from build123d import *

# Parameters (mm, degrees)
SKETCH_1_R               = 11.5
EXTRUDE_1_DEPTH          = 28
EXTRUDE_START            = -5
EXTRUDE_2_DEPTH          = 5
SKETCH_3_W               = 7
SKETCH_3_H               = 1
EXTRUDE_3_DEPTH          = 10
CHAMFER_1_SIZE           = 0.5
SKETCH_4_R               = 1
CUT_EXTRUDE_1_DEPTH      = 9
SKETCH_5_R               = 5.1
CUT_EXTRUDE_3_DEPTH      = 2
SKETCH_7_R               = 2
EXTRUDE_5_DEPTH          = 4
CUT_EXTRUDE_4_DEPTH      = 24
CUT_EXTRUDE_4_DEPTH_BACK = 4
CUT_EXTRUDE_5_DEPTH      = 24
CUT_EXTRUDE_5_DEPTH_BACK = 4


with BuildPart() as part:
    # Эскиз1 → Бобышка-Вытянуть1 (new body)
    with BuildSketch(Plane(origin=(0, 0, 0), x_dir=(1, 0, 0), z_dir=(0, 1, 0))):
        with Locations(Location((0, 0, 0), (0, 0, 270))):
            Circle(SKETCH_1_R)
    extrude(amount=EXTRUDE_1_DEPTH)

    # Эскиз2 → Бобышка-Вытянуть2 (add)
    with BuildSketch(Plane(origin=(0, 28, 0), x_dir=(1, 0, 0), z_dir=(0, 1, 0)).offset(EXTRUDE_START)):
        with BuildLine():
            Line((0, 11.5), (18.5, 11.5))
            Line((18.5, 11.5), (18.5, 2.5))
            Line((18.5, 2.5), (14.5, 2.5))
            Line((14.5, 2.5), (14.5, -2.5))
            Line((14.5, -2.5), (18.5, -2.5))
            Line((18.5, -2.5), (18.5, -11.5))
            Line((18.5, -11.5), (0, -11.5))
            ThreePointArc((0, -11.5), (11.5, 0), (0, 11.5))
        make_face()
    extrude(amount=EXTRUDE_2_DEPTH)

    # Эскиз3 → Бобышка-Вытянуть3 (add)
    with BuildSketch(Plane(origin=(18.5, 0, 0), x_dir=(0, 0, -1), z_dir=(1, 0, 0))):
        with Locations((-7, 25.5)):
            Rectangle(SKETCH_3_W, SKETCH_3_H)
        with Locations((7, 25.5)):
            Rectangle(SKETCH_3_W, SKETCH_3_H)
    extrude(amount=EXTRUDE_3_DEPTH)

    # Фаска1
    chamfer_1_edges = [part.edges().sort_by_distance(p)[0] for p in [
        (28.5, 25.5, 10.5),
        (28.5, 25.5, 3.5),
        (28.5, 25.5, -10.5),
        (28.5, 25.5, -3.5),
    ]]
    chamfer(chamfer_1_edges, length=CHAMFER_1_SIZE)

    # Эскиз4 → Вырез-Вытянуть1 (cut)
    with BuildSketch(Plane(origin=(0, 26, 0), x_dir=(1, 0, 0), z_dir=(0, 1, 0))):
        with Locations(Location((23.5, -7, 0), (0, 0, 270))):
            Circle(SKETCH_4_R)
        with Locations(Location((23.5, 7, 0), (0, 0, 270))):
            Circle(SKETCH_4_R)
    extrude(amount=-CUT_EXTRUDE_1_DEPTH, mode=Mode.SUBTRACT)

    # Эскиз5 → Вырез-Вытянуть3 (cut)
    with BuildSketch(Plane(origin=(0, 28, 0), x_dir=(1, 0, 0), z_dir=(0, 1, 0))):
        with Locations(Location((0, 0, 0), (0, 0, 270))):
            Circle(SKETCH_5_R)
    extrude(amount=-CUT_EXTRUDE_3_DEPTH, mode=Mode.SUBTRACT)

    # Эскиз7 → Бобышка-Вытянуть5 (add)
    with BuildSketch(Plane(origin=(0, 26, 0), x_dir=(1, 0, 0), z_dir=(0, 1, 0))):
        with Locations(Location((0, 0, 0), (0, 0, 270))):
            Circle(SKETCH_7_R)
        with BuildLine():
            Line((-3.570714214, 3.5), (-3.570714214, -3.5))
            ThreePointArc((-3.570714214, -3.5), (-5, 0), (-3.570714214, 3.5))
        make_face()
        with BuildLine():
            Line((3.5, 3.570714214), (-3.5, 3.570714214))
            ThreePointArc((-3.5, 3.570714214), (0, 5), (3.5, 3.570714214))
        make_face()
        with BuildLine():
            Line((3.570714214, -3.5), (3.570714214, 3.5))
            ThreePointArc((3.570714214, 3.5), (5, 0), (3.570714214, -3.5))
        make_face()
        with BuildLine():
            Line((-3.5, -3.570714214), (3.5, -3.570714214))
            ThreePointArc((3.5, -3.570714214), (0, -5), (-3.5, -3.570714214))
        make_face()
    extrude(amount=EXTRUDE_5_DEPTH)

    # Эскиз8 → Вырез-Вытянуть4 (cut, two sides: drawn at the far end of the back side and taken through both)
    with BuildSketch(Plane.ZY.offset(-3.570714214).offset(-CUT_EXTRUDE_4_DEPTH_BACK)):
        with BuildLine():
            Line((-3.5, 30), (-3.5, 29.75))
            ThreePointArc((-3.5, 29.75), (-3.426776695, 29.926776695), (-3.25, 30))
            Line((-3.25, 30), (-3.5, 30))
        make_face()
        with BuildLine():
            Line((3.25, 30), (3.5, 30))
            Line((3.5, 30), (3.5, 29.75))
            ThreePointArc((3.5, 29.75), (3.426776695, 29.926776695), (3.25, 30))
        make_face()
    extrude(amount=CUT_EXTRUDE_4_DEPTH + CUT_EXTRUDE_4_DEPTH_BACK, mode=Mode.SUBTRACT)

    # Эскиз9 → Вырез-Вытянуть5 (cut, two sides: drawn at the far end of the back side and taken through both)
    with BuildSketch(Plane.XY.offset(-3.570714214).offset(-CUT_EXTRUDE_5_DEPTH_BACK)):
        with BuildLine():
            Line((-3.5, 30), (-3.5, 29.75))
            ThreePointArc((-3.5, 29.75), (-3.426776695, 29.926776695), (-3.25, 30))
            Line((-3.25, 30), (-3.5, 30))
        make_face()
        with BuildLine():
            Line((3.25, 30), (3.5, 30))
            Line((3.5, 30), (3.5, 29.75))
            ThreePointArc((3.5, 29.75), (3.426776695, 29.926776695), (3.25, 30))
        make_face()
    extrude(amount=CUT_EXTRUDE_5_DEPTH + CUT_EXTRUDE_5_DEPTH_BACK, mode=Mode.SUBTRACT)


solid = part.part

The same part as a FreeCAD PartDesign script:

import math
import FreeCAD as App
import Part
import Sketcher

V = App.Vector


def edges_at(feature, points):
    """Names of the edges that pass closest to the given points."""
    edges = feature.Shape.Edges
    near = lambda p: min(range(len(edges)), key=lambda i: edges[i].distToShape(Part.Vertex(*p))[0])
    return sorted({f"Edge{near(p) + 1}" for p in points})

doc = App.newDocument("Part")
body = doc.addObject("PartDesign::Body", "Body")

sketch1 = body.newObject("Sketcher::SketchObject", "Sketch")
sketch1.AttachmentSupport = (doc.getObject("XZ_Plane"), [""])
sketch1.MapMode = "FlatFace"
sketch1.addGeometry(Part.Circle(V(0, 0, 0), V(0, 0, 1), 12), False)
sketch1.addConstraint(Sketcher.Constraint("Coincident", 0, 3, -1, 1))
sketch1.addConstraint(Sketcher.Constraint("Diameter", 0, 23.0))
pad1 = body.newObject("PartDesign::Pad", "Pad")
pad1.Profile = sketch1
pad1.Length = 28
pad1.Reversed = True

sketch2 = body.newObject("Sketcher::SketchObject", "Sketch001")
sketch2.AttachmentSupport = (doc.getObject("XZ_Plane"), [""])
sketch2.MapMode = "FlatFace"
sketch2.AttachmentOffset = App.Placement(V(0, 0, -23), App.Rotation())
sketch2.addGeometry(Part.LineSegment(V(18.5, -11.5, 0), V(0, -11.5, 0)), False)
sketch2.addGeometry(Part.ArcOfCircle(Part.Circle(V(0, 0, 0), V(0, 0, 1), 11.5), math.radians(-90), math.radians(90)), False)
sketch2.addGeometry(Part.LineSegment(V(0, 11.5, 0), V(18.5, 11.5, 0)), False)
sketch2.addGeometry(Part.LineSegment(V(18.5, 11.5, 0), V(18.5, 2.5, 0)), False)
sketch2.addGeometry(Part.LineSegment(V(18.5, 2.5, 0), V(14.5, 2.5, 0)), False)
sketch2.addGeometry(Part.LineSegment(V(14.5, 2.5, 0), V(14.5, -2.5, 0)), False)
sketch2.addGeometry(Part.LineSegment(V(14.5, -2.5, 0), V(18.5, -2.5, 0)), False)
sketch2.addGeometry(Part.LineSegment(V(18.5, -2.5, 0), V(18.5, -11.5, 0)), False)
sketch2.addConstraint(Sketcher.Constraint("Tangent", 0, 2, 1, 1))
sketch2.addConstraint(Sketcher.Constraint("Tangent", 1, 2, 2, 1))
sketch2.addConstraint(Sketcher.Constraint("Coincident", 2, 2, 3, 1))
sketch2.addConstraint(Sketcher.Constraint("Coincident", 3, 2, 4, 1))
sketch2.addConstraint(Sketcher.Constraint("Coincident", 4, 2, 5, 1))
sketch2.addConstraint(Sketcher.Constraint("Coincident", 5, 2, 6, 1))
sketch2.addConstraint(Sketcher.Constraint("Coincident", 6, 2, 7, 1))
sketch2.addConstraint(Sketcher.Constraint("Coincident", 7, 2, 0, 1))
sketch2.addConstraint(Sketcher.Constraint("Horizontal", 0))
sketch2.addConstraint(Sketcher.Constraint("Horizontal", 2))
sketch2.addConstraint(Sketcher.Constraint("Vertical", 3))
sketch2.addConstraint(Sketcher.Constraint("Horizontal", 4))
sketch2.addConstraint(Sketcher.Constraint("Vertical", 5))
sketch2.addConstraint(Sketcher.Constraint("Horizontal", 6))
sketch2.addConstraint(Sketcher.Constraint("Vertical", 7))
sketch2.addConstraint(Sketcher.Constraint("Coincident", 1, 3, -1, 1))
sketch2.addConstraint(Sketcher.Constraint("Symmetric", 3, 2, 6, 2, -1))
sketch2.addConstraint(Sketcher.Constraint("Radius", 1, 11.5))
sketch2.addConstraint(Sketcher.Constraint("DistanceX", 4, 2, 4, 1, 4.0))
sketch2.addConstraint(Sketcher.Constraint("DistanceY", 3, 2, 3, 1, 9.0))
sketch2.addConstraint(Sketcher.Constraint("DistanceX", 0, 2, 0, 1, 18.5))
pad2 = body.newObject("PartDesign::Pad", "Pad001")
pad2.Profile = sketch2
pad2.Length = 5
pad2.Reversed = True

sketch3 = body.newObject("Sketcher::SketchObject", "Sketch002")
sketch3.AttachmentSupport = (doc.getObject("YZ_Plane"), [""])
sketch3.MapMode = "FlatFace"
sketch3.AttachmentOffset = App.Placement(V(0, 0, 18.5), App.Rotation())
sketch3.addGeometry(Part.LineSegment(V(26, 10.5, 0), V(25, 10.5, 0)), False)
sketch3.addGeometry(Part.LineSegment(V(25, 10.5, 0), V(25, 3.5, 0)), False)
sketch3.addGeometry(Part.LineSegment(V(25, 3.5, 0), V(26, 3.5, 0)), False)
sketch3.addGeometry(Part.LineSegment(V(26, 3.5, 0), V(26, 10.5, 0)), False)
sketch3.addGeometry(Part.LineSegment(V(26, -3.5, 0), V(25, -3.5, 0)), False)
sketch3.addGeometry(Part.LineSegment(V(25, -3.5, 0), V(25, -10.5, 0)), False)
sketch3.addGeometry(Part.LineSegment(V(25, -10.5, 0), V(26, -10.5, 0)), False)
sketch3.addGeometry(Part.LineSegment(V(26, -10.5, 0), V(26, -3.5, 0)), False)
sketch3.addConstraint(Sketcher.Constraint("Coincident", 0, 2, 1, 1))
sketch3.addConstraint(Sketcher.Constraint("Coincident", 1, 2, 2, 1))
sketch3.addConstraint(Sketcher.Constraint("Coincident", 2, 2, 3, 1))
sketch3.addConstraint(Sketcher.Constraint("Coincident", 3, 2, 0, 1))
sketch3.addConstraint(Sketcher.Constraint("Coincident", 4, 2, 5, 1))
sketch3.addConstraint(Sketcher.Constraint("Coincident", 5, 2, 6, 1))
sketch3.addConstraint(Sketcher.Constraint("Coincident", 6, 2, 7, 1))
sketch3.addConstraint(Sketcher.Constraint("Coincident", 7, 2, 4, 1))
sketch3.addConstraint(Sketcher.Constraint("Horizontal", 0))
sketch3.addConstraint(Sketcher.Constraint("Vertical", 1))
sketch3.addConstraint(Sketcher.Constraint("Horizontal", 2))
sketch3.addConstraint(Sketcher.Constraint("Vertical", 3))
sketch3.addConstraint(Sketcher.Constraint("Horizontal", 4))
sketch3.addConstraint(Sketcher.Constraint("Vertical", 5))
sketch3.addConstraint(Sketcher.Constraint("Horizontal", 6))
sketch3.addConstraint(Sketcher.Constraint("Vertical", 7))
sketch3.addConstraint(Sketcher.Constraint("Symmetric", 1, 2, 4, 2, -1))
sketch3.addConstraint(Sketcher.Constraint("Symmetric", 3, 2, 6, 2, -1))
sketch3.addConstraint(Sketcher.Constraint("DistanceX", 0, 2, 0, 1, 1.0))
sketch3.addConstraint(Sketcher.Constraint("DistanceY", 1, 2, 1, 1, 7.0))
sketch3.addConstraint(Sketcher.Constraint("DistanceX", -1, 1, 0, 2, 25.0))
sketch3.addConstraint(Sketcher.Constraint("DistanceY", 4, 2, 1, 2, 7.0))
pad3 = body.newObject("PartDesign::Pad", "Pad002")
pad3.Profile = sketch3
pad3.Length = 10
doc.recompute()

chamfer = body.newObject("PartDesign::Chamfer", "Chamfer")
chamfer.Base = (pad3, edges_at(pad3, [
    (28.5, 25.5, 10.5),
    (28.5, 25.5, 3.5),
    (28.5, 25.5, -10.5),
    (28.5, 25.5, -3.5),
]))
chamfer.Size = 0.5

sketch4 = body.newObject("Sketcher::SketchObject", "Sketch003")
sketch4.AttachmentSupport = (doc.getObject("XZ_Plane"), [""])
sketch4.MapMode = "FlatFace"
sketch4.AttachmentOffset = App.Placement(V(0, 0, -26), App.Rotation())
sketch4.addGeometry(Part.Circle(V(23.5, 7, 0), V(0, 0, 1), 1), False)
sketch4.addGeometry(Part.Circle(V(23.5, -7, 0), V(0, 0, 1), 1), False)
sketch4.addConstraint(Sketcher.Constraint("Equal", 0, 1))
sketch4.addConstraint(Sketcher.Constraint("Symmetric", 0, 3, 1, 3, -1))
sketch4.addConstraint(Sketcher.Constraint("Diameter", 0, 2.0))
sketch4.addConstraint(Sketcher.Constraint("DistanceY", -1, 1, 0, 3, 7.0))
sketch4.addConstraint(Sketcher.Constraint("DistanceX", -1, 1, 0, 3, 23.5))
pocket1 = body.newObject("PartDesign::Pocket", "Pocket")
pocket1.Profile = sketch4
pocket1.Length = 9
pocket1.Reversed = True

sketch5 = body.newObject("Sketcher::SketchObject", "Sketch004")
sketch5.AttachmentSupport = (doc.getObject("XZ_Plane"), [""])
sketch5.MapMode = "FlatFace"
sketch5.AttachmentOffset = App.Placement(V(0, 0, -28), App.Rotation())
sketch5.addGeometry(Part.Circle(V(0, 0, 0), V(0, 0, 1), 5), False)
sketch5.addConstraint(Sketcher.Constraint("Coincident", 0, 3, -1, 1))
sketch5.addConstraint(Sketcher.Constraint("Diameter", 0, 10.2))
pocket2 = body.newObject("PartDesign::Pocket", "Pocket001")
pocket2.Profile = sketch5
pocket2.Length = 2
pocket2.Reversed = True

sketch6 = body.newObject("Sketcher::SketchObject", "Sketch005")
sketch6.AttachmentSupport = (doc.getObject("XZ_Plane"), [""])
sketch6.MapMode = "FlatFace"
sketch6.AttachmentOffset = App.Placement(V(0, 0, -26), App.Rotation())
sketch6.addGeometry(Part.Circle(V(0, 0, 0), V(0, 0, 1), 2), False)
sketch6.addGeometry(Part.LineSegment(V(-3.6, 3.5, 0), V(-3.6, -3.5, 0)), False)
sketch6.addGeometry(Part.ArcOfCircle(Part.Circle(V(0, 0, 0), V(0, 0, 1), 5), math.radians(136), math.radians(224)), False)
sketch6.addGeometry(Part.LineSegment(V(-3.5, -3.6, 0), V(3.5, -3.6, 0)), False)
sketch6.addGeometry(Part.ArcOfCircle(Part.Circle(V(0, 0, 0), V(0, 0, 1), 5), math.radians(-134), math.radians(-46)), False)
sketch6.addGeometry(Part.LineSegment(V(3.6, -3.5, 0), V(3.6, 3.5, 0)), False)
sketch6.addGeometry(Part.ArcOfCircle(Part.Circle(V(0, 0, 0), V(0, 0, 1), 5), math.radians(-44), math.radians(44)), False)
sketch6.addGeometry(Part.LineSegment(V(3.5, 3.6, 0), V(-3.5, 3.6, 0)), False)
sketch6.addGeometry(Part.ArcOfCircle(Part.Circle(V(0, 0, 0), V(0, 0, 1), 5), math.radians(46), math.radians(134)), False)
sketch6.addConstraint(Sketcher.Constraint("Coincident", 1, 1, 2, 1))
sketch6.addConstraint(Sketcher.Constraint("Coincident", 2, 2, 1, 2))
sketch6.addConstraint(Sketcher.Constraint("Coincident", 3, 1, 4, 1))
sketch6.addConstraint(Sketcher.Constraint("Coincident", 4, 2, 3, 2))
sketch6.addConstraint(Sketcher.Constraint("Coincident", 5, 1, 6, 1))
sketch6.addConstraint(Sketcher.Constraint("Coincident", 6, 2, 5, 2))
sketch6.addConstraint(Sketcher.Constraint("Coincident", 7, 1, 8, 1))
sketch6.addConstraint(Sketcher.Constraint("Coincident", 8, 2, 7, 2))
sketch6.addConstraint(Sketcher.Constraint("Vertical", 1))
sketch6.addConstraint(Sketcher.Constraint("Horizontal", 3))
sketch6.addConstraint(Sketcher.Constraint("Vertical", 5))
sketch6.addConstraint(Sketcher.Constraint("Horizontal", 7))
sketch6.addConstraint(Sketcher.Constraint("Coincident", 0, 3, -1, 1))
sketch6.addConstraint(Sketcher.Constraint("Coincident", 2, 3, -1, 1))
sketch6.addConstraint(Sketcher.Constraint("Coincident", 4, 3, -1, 1))
sketch6.addConstraint(Sketcher.Constraint("Coincident", 6, 3, -1, 1))
sketch6.addConstraint(Sketcher.Constraint("Coincident", 8, 3, -1, 1))
sketch6.addConstraint(Sketcher.Constraint("Equal", 2, 4))
sketch6.addConstraint(Sketcher.Constraint("Equal", 4, 6))
sketch6.addConstraint(Sketcher.Constraint("Equal", 6, 8))
sketch6.addConstraint(Sketcher.Constraint("Horizontal", 2, 2, 5, 1))
sketch6.addConstraint(Sketcher.Constraint("Vertical", 4, 2, 7, 1))
sketch6.addConstraint(Sketcher.Constraint("Equal", 7, 1))
sketch6.addConstraint(Sketcher.Constraint("Diameter", 0, 4.0))
sketch6.addConstraint(Sketcher.Constraint("Radius", 2, 5.0))
sketch6.addConstraint(Sketcher.Constraint("DistanceX", 3, 1, 3, 2, 7.0))
pad4 = body.newObject("PartDesign::Pad", "Pad003")
pad4.Profile = sketch6
pad4.Length = 4
pad4.Reversed = True

sketch7 = body.newObject("Sketcher::SketchObject", "Sketch006")
sketch7.AttachmentSupport = (doc.getObject("YZ_Plane"), [""])
sketch7.MapMode = "FlatFace"
sketch7.AttachmentOffset = App.Placement(V(0, 0, 3.570714), App.Rotation())
sketch7.addGeometry(Part.LineSegment(V(30, -3.5, 0), V(29.75, -3.5, 0)), False)
sketch7.addGeometry(Part.ArcOfCircle(Part.Circle(V(29.75, -3.25, 0), V(0, 0, 1), 0.25), math.radians(-90), math.radians(0)), False)
sketch7.addGeometry(Part.LineSegment(V(30, -3.25, 0), V(30, -3.5, 0)), False)
sketch7.addGeometry(Part.LineSegment(V(30, 3.5, 0), V(30, 3.25, 0)), False)
sketch7.addGeometry(Part.ArcOfCircle(Part.Circle(V(29.75, 3.25, 0), V(0, 0, 1), 0.25), math.radians(0), math.radians(90)), False)
sketch7.addGeometry(Part.LineSegment(V(29.75, 3.5, 0), V(30, 3.5, 0)), False)
sketch7.addConstraint(Sketcher.Constraint("Tangent", 0, 2, 1, 1))
sketch7.addConstraint(Sketcher.Constraint("Tangent", 1, 2, 2, 1))
sketch7.addConstraint(Sketcher.Constraint("Coincident", 2, 2, 0, 1))
sketch7.addConstraint(Sketcher.Constraint("Tangent", 3, 2, 4, 1))
sketch7.addConstraint(Sketcher.Constraint("Tangent", 4, 2, 5, 1))
sketch7.addConstraint(Sketcher.Constraint("Coincident", 5, 2, 3, 1))
sketch7.addConstraint(Sketcher.Constraint("Horizontal", 0))
sketch7.addConstraint(Sketcher.Constraint("Vertical", 2))
sketch7.addConstraint(Sketcher.Constraint("Vertical", 3))
sketch7.addConstraint(Sketcher.Constraint("Horizontal", 5))
sketch7.addConstraint(Sketcher.Constraint("Equal", 1, 4))
sketch7.addConstraint(Sketcher.Constraint("Symmetric", 1, 3, 4, 3, -1))
sketch7.addConstraint(Sketcher.Constraint("Radius", 1, 0.25))
sketch7.addConstraint(Sketcher.Constraint("DistanceX", -1, 1, 1, 2, 30.0))
sketch7.addConstraint(Sketcher.Constraint("DistanceY", 0, 2, 4, 2, 7.0))
pocket3 = body.newObject("PartDesign::Pocket", "Pocket002")
pocket3.Profile = sketch7
pocket3.Type = "ThroughAll"
pocket3.Midplane = True

sketch8 = body.newObject("Sketcher::SketchObject", "Sketch007")
sketch8.AttachmentSupport = (doc.getObject("XY_Plane"), [""])
sketch8.MapMode = "FlatFace"
sketch8.AttachmentOffset = App.Placement(V(0, 0, -3.570714), App.Rotation())
sketch8.addGeometry(Part.LineSegment(V(-3.5, 30, 0), V(-3.5, 29.75, 0)), False)
sketch8.addGeometry(Part.ArcOfCircle(Part.Circle(V(-3.25, 29.75, 0), V(0, 0, 1), 0.25), math.radians(90), math.radians(180)), False)
sketch8.addGeometry(Part.LineSegment(V(-3.25, 30, 0), V(-3.5, 30, 0)), False)
sketch8.addGeometry(Part.LineSegment(V(3.5, 30, 0), V(3.25, 30, 0)), False)
sketch8.addGeometry(Part.ArcOfCircle(Part.Circle(V(3.25, 29.75, 0), V(0, 0, 1), 0.25), math.radians(0), math.radians(90)), False)
sketch8.addGeometry(Part.LineSegment(V(3.5, 29.75, 0), V(3.5, 30, 0)), False)
sketch8.addConstraint(Sketcher.Constraint("Tangent", 0, 2, 1, 2))
sketch8.addConstraint(Sketcher.Constraint("Tangent", 1, 1, 2, 1))
sketch8.addConstraint(Sketcher.Constraint("Coincident", 2, 2, 0, 1))
sketch8.addConstraint(Sketcher.Constraint("Tangent", 3, 2, 4, 2))
sketch8.addConstraint(Sketcher.Constraint("Tangent", 4, 1, 5, 1))
sketch8.addConstraint(Sketcher.Constraint("Coincident", 5, 2, 3, 1))
sketch8.addConstraint(Sketcher.Constraint("Vertical", 0))
sketch8.addConstraint(Sketcher.Constraint("Horizontal", 2))
sketch8.addConstraint(Sketcher.Constraint("Horizontal", 3))
sketch8.addConstraint(Sketcher.Constraint("Vertical", 5))
sketch8.addConstraint(Sketcher.Constraint("Equal", 1, 4))
sketch8.addConstraint(Sketcher.Constraint("Symmetric", 1, 3, 4, 3, -2))
sketch8.addConstraint(Sketcher.Constraint("Radius", 1, 0.25))
sketch8.addConstraint(Sketcher.Constraint("DistanceY", -1, 1, 1, 1, 30.0))
sketch8.addConstraint(Sketcher.Constraint("DistanceX", 0, 2, 4, 1, 7.0))
pocket4 = body.newObject("PartDesign::Pocket", "Pocket003")
pocket4.Profile = sketch8
pocket4.Type = "ThroughAll"
pocket4.Midplane = True

doc.recompute()
